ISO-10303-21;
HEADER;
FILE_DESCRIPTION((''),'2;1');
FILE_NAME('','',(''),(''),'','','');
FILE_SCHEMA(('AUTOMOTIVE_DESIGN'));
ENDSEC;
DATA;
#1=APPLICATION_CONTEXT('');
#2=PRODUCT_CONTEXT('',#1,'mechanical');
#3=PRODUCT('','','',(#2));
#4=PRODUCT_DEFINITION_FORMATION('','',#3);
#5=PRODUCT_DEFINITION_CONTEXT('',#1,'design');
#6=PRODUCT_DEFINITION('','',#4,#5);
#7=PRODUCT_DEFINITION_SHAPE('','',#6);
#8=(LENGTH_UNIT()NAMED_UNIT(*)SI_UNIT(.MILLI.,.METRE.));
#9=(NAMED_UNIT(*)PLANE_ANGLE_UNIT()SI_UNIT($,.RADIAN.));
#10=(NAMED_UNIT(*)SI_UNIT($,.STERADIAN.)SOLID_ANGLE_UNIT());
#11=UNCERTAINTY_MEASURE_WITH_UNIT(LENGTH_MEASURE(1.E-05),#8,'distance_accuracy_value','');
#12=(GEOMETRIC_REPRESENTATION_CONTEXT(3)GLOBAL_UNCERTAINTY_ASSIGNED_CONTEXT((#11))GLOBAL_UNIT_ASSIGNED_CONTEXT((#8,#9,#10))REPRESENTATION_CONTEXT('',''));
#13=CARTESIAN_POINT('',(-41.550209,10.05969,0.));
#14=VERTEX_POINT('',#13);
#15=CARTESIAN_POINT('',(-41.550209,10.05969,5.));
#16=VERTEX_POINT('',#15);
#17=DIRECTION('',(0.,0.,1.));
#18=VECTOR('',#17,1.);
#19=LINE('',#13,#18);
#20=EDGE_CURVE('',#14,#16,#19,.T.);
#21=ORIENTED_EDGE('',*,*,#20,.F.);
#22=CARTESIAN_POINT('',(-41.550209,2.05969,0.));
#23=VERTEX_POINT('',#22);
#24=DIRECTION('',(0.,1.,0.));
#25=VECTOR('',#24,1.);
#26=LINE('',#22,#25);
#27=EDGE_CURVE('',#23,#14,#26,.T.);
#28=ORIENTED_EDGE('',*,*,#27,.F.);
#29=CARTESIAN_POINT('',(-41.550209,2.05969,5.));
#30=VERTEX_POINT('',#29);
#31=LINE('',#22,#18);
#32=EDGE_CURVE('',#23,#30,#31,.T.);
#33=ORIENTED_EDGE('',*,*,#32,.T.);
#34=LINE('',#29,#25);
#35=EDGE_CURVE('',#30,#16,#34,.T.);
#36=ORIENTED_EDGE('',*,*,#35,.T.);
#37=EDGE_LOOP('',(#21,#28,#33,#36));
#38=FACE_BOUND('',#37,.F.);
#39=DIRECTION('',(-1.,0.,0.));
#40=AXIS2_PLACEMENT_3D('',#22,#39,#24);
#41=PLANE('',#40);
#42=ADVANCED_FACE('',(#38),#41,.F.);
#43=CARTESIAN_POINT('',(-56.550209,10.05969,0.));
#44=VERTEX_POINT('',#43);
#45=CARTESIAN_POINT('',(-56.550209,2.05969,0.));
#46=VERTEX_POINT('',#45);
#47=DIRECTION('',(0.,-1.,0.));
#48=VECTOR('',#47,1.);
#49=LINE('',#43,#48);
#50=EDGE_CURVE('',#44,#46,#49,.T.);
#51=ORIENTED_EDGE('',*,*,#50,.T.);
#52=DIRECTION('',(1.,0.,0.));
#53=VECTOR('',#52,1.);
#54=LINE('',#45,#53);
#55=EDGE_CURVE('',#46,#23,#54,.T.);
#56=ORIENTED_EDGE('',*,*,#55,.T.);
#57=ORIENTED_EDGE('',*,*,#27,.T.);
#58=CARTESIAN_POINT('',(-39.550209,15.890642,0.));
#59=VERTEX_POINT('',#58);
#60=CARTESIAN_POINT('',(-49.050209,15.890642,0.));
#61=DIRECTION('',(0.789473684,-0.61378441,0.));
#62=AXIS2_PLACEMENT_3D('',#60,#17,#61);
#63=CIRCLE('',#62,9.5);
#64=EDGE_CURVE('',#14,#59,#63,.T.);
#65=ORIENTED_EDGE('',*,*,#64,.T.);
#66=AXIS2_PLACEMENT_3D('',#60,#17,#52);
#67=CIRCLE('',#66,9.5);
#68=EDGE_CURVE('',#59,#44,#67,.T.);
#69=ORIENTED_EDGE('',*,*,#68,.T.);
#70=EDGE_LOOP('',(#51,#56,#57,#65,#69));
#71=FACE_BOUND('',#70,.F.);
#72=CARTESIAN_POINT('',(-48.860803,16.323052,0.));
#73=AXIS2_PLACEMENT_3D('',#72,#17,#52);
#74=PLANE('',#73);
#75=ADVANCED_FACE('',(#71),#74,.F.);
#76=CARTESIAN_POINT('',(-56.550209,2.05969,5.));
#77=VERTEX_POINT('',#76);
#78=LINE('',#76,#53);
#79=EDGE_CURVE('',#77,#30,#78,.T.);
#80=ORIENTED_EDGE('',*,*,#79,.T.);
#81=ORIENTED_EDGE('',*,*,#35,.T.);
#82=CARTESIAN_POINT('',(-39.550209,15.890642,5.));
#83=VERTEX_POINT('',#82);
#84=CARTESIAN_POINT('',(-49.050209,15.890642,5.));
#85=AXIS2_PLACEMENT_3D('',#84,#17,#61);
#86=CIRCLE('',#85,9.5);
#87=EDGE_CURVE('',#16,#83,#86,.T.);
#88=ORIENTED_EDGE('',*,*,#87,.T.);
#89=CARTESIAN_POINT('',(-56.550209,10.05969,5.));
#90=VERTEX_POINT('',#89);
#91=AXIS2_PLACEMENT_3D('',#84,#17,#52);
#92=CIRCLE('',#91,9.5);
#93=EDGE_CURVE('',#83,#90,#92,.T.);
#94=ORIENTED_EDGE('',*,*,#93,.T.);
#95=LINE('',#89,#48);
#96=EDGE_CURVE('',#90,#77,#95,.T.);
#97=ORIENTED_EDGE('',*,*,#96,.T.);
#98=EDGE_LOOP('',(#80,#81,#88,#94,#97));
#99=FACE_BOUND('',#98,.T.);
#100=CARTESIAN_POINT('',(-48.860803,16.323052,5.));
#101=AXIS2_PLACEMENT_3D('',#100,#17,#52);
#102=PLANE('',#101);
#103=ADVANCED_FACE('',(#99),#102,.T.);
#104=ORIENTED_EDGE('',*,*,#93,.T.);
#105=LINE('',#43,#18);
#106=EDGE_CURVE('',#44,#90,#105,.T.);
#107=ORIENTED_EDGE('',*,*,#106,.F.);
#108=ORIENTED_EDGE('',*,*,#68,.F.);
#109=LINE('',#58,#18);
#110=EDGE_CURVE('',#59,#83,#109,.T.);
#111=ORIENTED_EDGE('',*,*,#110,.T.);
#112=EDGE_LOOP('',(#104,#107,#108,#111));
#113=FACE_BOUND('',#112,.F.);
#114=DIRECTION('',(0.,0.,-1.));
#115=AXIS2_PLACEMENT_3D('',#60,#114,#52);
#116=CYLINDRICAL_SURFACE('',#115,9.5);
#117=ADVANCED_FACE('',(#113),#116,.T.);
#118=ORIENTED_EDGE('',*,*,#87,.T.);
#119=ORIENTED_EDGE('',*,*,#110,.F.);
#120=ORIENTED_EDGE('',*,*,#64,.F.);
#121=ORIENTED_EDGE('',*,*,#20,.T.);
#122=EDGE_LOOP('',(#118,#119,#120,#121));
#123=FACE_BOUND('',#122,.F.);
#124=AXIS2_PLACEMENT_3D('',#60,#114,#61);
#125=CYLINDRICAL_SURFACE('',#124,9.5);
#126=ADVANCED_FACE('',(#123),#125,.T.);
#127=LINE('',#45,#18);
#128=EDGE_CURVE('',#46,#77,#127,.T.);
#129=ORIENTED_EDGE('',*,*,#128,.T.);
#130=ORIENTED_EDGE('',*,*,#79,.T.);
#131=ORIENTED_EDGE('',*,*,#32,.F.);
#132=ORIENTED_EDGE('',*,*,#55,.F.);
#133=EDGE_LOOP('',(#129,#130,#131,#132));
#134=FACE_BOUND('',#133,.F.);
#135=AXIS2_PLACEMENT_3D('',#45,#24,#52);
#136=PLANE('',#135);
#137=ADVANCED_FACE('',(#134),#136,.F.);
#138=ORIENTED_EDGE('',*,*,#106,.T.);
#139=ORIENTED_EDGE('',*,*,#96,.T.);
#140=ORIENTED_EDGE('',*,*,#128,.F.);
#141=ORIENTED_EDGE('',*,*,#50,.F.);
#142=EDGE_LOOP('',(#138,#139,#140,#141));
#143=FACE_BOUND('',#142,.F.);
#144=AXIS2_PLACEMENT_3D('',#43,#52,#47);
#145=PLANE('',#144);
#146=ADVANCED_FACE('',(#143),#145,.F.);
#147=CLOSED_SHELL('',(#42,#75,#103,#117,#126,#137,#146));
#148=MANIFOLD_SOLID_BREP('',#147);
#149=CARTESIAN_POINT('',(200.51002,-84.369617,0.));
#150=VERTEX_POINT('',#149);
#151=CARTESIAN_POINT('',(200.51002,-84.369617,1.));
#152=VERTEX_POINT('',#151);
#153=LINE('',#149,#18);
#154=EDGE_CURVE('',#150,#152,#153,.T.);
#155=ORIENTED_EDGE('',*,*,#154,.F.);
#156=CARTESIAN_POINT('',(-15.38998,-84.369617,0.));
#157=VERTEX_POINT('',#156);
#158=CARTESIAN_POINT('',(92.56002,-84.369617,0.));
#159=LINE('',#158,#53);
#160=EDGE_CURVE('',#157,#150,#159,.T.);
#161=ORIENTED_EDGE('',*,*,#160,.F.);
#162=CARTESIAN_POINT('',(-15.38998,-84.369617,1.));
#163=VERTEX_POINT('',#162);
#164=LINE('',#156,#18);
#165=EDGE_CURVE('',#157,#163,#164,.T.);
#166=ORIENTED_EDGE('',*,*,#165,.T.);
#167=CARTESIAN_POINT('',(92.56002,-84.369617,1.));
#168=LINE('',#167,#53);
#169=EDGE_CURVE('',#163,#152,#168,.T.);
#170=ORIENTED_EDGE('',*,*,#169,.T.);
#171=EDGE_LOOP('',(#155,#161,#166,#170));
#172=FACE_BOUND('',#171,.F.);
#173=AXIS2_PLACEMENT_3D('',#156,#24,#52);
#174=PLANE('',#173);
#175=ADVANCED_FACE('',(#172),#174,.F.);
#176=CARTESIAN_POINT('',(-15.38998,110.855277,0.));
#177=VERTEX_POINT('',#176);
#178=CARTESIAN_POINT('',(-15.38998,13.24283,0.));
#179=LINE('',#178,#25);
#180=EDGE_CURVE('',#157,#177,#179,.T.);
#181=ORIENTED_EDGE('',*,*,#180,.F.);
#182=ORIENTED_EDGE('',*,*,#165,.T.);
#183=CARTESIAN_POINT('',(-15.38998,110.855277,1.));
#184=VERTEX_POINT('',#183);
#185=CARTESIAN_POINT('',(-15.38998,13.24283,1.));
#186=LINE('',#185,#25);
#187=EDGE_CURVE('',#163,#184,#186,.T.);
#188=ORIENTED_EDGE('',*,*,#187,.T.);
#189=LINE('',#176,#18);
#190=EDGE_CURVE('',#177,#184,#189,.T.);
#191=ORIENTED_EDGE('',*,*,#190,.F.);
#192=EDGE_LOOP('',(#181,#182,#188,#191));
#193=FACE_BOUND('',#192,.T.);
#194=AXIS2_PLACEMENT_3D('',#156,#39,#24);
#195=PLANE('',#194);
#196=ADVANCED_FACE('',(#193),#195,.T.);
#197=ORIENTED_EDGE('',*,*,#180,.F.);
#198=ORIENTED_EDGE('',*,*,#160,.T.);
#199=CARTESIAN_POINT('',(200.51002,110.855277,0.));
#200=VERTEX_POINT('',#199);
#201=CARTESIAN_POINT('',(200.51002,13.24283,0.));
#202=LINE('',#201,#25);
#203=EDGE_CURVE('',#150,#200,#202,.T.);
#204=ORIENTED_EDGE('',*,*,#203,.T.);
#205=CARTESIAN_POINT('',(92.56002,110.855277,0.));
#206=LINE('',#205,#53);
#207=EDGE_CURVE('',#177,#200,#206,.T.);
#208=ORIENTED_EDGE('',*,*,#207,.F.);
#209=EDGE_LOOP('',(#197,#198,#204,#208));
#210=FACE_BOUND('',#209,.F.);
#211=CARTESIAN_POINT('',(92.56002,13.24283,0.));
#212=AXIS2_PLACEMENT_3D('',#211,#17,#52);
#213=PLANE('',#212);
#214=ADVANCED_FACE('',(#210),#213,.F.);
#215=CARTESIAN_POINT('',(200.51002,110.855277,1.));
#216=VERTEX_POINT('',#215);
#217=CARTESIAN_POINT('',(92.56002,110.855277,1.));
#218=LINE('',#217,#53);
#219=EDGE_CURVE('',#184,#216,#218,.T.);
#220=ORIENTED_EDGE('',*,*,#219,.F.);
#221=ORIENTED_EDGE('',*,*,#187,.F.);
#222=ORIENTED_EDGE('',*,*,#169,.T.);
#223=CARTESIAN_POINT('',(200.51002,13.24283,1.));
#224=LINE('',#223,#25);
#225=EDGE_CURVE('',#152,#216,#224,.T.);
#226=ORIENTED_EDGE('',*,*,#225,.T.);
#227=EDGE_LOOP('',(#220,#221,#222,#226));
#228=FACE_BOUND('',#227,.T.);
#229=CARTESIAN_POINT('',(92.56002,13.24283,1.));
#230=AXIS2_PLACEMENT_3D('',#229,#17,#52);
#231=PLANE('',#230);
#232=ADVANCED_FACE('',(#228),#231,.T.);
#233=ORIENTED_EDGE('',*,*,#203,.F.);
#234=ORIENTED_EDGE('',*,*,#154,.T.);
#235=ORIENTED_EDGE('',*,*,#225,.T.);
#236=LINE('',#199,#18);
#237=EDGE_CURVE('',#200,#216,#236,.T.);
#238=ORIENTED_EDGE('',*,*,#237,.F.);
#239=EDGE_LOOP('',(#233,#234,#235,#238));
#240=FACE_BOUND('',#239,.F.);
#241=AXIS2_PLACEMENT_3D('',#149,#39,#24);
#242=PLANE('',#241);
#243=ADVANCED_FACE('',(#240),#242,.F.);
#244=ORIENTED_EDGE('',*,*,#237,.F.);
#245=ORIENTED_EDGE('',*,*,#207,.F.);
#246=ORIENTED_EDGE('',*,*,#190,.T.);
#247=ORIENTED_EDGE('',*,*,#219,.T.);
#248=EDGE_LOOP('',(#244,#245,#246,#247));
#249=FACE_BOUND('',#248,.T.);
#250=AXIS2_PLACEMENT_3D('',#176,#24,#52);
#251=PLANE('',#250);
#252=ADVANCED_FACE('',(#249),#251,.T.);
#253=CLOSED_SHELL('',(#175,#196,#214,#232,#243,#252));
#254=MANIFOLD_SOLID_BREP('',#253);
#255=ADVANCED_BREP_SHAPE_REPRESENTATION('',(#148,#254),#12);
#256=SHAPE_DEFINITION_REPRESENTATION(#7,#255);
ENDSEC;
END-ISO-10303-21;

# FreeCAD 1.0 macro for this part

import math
import FreeCAD as App
import Part
import Sketcher
from FreeCAD import Vector
Q = App.Units.Quantity

doc = App.newDocument("Part")
body = doc.addObject("PartDesign::Body", "Body")

sketch1 = body.newObject("Sketcher::SketchObject", "Sketch")
sketch1.AttachmentSupport = (doc.getObject("XY_Plane"), [""])
sketch1.MapMode = "FlatFace"
sketch1.addGeometry(Part.ArcOfCircle(Part.Circle(Vector(-49, 16, 0), Vector(0, 0, 1), 10), math.radians(-38), math.radians(0)), False)
sketch1.addGeometry(Part.ArcOfCircle(Part.Circle(Vector(-49, 16, 0), Vector(0, 0, 1), 10), math.radians(0), math.radians(218)), False)
sketch1.addGeometry(Part.LineSegment(Vector(-57, 10, 0), Vector(-57, 2, 0)), False)
sketch1.addGeometry(Part.LineSegment(Vector(-57, 2, 0), Vector(-42, 2, 0)), False)
sketch1.addGeometry(Part.LineSegment(Vector(-42, 2, 0), Vector(-42, 10, 0)), False)
sketch1.addConstraint(Sketcher.Constraint("Tangent", 0, 2, 1, 1))
sketch1.addConstraint(Sketcher.Constraint("Coincident", 1, 2, 2, 1))
sketch1.addConstraint(Sketcher.Constraint("Coincident", 2, 2, 3, 1))
sketch1.addConstraint(Sketcher.Constraint("Coincident", 3, 2, 4, 1))
sketch1.addConstraint(Sketcher.Constraint("Coincident", 4, 2, 0, 1))
sketch1.addConstraint(Sketcher.Constraint("Vertical", 2))
sketch1.addConstraint(Sketcher.Constraint("Horizontal", 3))
sketch1.addConstraint(Sketcher.Constraint("Vertical", 4))
sketch1.addConstraint(Sketcher.Constraint("Equal", 0, 1))
sketch1.addConstraint(Sketcher.Constraint("Horizontal", 1, 3, 0, 2))
sketch1.addConstraint(Sketcher.Constraint("Horizontal", 1, 2, 4, 2))
sketch1.addConstraint(Sketcher.Constraint("Radius", 0, Q("9.5 mm")))
sketch1.addConstraint(Sketcher.Constraint("DistanceX", 3, 1, 3, 2, Q("15 mm")))
sketch1.addConstraint(Sketcher.Constraint("DistanceY", 2, 2, 2, 1, Q("8 mm")))
sketch1.addConstraint(Sketcher.Constraint("DistanceX", 0, 3, -1, 1, Q("49.050209 mm")))
sketch1.addConstraint(Sketcher.Constraint("DistanceY", -1, 1, 1, 2, Q("10.05969 mm")))
pad1 = body.newObject("PartDesign::Pad", "Pad")
pad1.Profile = sketch1
pad1.Length = 5
body2 = doc.addObject("PartDesign::Body", "Body001")

sketch2 = body2.newObject("Sketcher::SketchObject", "Sketch001")
sketch2.AttachmentSupport = (doc.getObject("XY_Plane001"), [""])
sketch2.MapMode = "FlatFace"
sketch2.addGeometry(Part.LineSegment(Vector(-15, 111, 0), Vector(-15, -84, 0)), False)
sketch2.addGeometry(Part.LineSegment(Vector(-15, -84, 0), Vector(201, -84, 0)), False)
sketch2.addGeometry(Part.LineSegment(Vector(201, -84, 0), Vector(201, 111, 0)), False)
sketch2.addGeometry(Part.LineSegment(Vector(201, 111, 0), Vector(-15, 111, 0)), False)
sketch2.addConstraint(Sketcher.Constraint("Coincident", 0, 2, 1, 1))
sketch2.addConstraint(Sketcher.Constraint("Coincident", 1, 2, 2, 1))
sketch2.addConstraint(Sketcher.Constraint("Coincident", 2, 2, 3, 1))
sketch2.addConstraint(Sketcher.Constraint("Coincident", 3, 2, 0, 1))
sketch2.addConstraint(Sketcher.Constraint("Vertical", 0))
sketch2.addConstraint(Sketcher.Constraint("Horizontal", 1))
sketch2.addConstraint(Sketcher.Constraint("Vertical", 2))
sketch2.addConstraint(Sketcher.Constraint("Horizontal", 3))
sketch2.addConstraint(Sketcher.Constraint("DistanceX", 1, 1, 1, 2, Q("215.9 mm")))
sketch2.addConstraint(Sketcher.Constraint("DistanceY", 0, 2, 0, 1, Q("195.224894 mm")))
sketch2.addConstraint(Sketcher.Constraint("DistanceX", 0, 2, -1, 1, Q("15.38998 mm")))
sketch2.addConstraint(Sketcher.Constraint("DistanceY", 0, 2, -1, 1, Q("84.369617 mm")))
pad2 = body2.newObject("PartDesign::Pad", "Pad001")
pad2.Profile = sketch2
pad2.Length = 1

doc.recompute()
